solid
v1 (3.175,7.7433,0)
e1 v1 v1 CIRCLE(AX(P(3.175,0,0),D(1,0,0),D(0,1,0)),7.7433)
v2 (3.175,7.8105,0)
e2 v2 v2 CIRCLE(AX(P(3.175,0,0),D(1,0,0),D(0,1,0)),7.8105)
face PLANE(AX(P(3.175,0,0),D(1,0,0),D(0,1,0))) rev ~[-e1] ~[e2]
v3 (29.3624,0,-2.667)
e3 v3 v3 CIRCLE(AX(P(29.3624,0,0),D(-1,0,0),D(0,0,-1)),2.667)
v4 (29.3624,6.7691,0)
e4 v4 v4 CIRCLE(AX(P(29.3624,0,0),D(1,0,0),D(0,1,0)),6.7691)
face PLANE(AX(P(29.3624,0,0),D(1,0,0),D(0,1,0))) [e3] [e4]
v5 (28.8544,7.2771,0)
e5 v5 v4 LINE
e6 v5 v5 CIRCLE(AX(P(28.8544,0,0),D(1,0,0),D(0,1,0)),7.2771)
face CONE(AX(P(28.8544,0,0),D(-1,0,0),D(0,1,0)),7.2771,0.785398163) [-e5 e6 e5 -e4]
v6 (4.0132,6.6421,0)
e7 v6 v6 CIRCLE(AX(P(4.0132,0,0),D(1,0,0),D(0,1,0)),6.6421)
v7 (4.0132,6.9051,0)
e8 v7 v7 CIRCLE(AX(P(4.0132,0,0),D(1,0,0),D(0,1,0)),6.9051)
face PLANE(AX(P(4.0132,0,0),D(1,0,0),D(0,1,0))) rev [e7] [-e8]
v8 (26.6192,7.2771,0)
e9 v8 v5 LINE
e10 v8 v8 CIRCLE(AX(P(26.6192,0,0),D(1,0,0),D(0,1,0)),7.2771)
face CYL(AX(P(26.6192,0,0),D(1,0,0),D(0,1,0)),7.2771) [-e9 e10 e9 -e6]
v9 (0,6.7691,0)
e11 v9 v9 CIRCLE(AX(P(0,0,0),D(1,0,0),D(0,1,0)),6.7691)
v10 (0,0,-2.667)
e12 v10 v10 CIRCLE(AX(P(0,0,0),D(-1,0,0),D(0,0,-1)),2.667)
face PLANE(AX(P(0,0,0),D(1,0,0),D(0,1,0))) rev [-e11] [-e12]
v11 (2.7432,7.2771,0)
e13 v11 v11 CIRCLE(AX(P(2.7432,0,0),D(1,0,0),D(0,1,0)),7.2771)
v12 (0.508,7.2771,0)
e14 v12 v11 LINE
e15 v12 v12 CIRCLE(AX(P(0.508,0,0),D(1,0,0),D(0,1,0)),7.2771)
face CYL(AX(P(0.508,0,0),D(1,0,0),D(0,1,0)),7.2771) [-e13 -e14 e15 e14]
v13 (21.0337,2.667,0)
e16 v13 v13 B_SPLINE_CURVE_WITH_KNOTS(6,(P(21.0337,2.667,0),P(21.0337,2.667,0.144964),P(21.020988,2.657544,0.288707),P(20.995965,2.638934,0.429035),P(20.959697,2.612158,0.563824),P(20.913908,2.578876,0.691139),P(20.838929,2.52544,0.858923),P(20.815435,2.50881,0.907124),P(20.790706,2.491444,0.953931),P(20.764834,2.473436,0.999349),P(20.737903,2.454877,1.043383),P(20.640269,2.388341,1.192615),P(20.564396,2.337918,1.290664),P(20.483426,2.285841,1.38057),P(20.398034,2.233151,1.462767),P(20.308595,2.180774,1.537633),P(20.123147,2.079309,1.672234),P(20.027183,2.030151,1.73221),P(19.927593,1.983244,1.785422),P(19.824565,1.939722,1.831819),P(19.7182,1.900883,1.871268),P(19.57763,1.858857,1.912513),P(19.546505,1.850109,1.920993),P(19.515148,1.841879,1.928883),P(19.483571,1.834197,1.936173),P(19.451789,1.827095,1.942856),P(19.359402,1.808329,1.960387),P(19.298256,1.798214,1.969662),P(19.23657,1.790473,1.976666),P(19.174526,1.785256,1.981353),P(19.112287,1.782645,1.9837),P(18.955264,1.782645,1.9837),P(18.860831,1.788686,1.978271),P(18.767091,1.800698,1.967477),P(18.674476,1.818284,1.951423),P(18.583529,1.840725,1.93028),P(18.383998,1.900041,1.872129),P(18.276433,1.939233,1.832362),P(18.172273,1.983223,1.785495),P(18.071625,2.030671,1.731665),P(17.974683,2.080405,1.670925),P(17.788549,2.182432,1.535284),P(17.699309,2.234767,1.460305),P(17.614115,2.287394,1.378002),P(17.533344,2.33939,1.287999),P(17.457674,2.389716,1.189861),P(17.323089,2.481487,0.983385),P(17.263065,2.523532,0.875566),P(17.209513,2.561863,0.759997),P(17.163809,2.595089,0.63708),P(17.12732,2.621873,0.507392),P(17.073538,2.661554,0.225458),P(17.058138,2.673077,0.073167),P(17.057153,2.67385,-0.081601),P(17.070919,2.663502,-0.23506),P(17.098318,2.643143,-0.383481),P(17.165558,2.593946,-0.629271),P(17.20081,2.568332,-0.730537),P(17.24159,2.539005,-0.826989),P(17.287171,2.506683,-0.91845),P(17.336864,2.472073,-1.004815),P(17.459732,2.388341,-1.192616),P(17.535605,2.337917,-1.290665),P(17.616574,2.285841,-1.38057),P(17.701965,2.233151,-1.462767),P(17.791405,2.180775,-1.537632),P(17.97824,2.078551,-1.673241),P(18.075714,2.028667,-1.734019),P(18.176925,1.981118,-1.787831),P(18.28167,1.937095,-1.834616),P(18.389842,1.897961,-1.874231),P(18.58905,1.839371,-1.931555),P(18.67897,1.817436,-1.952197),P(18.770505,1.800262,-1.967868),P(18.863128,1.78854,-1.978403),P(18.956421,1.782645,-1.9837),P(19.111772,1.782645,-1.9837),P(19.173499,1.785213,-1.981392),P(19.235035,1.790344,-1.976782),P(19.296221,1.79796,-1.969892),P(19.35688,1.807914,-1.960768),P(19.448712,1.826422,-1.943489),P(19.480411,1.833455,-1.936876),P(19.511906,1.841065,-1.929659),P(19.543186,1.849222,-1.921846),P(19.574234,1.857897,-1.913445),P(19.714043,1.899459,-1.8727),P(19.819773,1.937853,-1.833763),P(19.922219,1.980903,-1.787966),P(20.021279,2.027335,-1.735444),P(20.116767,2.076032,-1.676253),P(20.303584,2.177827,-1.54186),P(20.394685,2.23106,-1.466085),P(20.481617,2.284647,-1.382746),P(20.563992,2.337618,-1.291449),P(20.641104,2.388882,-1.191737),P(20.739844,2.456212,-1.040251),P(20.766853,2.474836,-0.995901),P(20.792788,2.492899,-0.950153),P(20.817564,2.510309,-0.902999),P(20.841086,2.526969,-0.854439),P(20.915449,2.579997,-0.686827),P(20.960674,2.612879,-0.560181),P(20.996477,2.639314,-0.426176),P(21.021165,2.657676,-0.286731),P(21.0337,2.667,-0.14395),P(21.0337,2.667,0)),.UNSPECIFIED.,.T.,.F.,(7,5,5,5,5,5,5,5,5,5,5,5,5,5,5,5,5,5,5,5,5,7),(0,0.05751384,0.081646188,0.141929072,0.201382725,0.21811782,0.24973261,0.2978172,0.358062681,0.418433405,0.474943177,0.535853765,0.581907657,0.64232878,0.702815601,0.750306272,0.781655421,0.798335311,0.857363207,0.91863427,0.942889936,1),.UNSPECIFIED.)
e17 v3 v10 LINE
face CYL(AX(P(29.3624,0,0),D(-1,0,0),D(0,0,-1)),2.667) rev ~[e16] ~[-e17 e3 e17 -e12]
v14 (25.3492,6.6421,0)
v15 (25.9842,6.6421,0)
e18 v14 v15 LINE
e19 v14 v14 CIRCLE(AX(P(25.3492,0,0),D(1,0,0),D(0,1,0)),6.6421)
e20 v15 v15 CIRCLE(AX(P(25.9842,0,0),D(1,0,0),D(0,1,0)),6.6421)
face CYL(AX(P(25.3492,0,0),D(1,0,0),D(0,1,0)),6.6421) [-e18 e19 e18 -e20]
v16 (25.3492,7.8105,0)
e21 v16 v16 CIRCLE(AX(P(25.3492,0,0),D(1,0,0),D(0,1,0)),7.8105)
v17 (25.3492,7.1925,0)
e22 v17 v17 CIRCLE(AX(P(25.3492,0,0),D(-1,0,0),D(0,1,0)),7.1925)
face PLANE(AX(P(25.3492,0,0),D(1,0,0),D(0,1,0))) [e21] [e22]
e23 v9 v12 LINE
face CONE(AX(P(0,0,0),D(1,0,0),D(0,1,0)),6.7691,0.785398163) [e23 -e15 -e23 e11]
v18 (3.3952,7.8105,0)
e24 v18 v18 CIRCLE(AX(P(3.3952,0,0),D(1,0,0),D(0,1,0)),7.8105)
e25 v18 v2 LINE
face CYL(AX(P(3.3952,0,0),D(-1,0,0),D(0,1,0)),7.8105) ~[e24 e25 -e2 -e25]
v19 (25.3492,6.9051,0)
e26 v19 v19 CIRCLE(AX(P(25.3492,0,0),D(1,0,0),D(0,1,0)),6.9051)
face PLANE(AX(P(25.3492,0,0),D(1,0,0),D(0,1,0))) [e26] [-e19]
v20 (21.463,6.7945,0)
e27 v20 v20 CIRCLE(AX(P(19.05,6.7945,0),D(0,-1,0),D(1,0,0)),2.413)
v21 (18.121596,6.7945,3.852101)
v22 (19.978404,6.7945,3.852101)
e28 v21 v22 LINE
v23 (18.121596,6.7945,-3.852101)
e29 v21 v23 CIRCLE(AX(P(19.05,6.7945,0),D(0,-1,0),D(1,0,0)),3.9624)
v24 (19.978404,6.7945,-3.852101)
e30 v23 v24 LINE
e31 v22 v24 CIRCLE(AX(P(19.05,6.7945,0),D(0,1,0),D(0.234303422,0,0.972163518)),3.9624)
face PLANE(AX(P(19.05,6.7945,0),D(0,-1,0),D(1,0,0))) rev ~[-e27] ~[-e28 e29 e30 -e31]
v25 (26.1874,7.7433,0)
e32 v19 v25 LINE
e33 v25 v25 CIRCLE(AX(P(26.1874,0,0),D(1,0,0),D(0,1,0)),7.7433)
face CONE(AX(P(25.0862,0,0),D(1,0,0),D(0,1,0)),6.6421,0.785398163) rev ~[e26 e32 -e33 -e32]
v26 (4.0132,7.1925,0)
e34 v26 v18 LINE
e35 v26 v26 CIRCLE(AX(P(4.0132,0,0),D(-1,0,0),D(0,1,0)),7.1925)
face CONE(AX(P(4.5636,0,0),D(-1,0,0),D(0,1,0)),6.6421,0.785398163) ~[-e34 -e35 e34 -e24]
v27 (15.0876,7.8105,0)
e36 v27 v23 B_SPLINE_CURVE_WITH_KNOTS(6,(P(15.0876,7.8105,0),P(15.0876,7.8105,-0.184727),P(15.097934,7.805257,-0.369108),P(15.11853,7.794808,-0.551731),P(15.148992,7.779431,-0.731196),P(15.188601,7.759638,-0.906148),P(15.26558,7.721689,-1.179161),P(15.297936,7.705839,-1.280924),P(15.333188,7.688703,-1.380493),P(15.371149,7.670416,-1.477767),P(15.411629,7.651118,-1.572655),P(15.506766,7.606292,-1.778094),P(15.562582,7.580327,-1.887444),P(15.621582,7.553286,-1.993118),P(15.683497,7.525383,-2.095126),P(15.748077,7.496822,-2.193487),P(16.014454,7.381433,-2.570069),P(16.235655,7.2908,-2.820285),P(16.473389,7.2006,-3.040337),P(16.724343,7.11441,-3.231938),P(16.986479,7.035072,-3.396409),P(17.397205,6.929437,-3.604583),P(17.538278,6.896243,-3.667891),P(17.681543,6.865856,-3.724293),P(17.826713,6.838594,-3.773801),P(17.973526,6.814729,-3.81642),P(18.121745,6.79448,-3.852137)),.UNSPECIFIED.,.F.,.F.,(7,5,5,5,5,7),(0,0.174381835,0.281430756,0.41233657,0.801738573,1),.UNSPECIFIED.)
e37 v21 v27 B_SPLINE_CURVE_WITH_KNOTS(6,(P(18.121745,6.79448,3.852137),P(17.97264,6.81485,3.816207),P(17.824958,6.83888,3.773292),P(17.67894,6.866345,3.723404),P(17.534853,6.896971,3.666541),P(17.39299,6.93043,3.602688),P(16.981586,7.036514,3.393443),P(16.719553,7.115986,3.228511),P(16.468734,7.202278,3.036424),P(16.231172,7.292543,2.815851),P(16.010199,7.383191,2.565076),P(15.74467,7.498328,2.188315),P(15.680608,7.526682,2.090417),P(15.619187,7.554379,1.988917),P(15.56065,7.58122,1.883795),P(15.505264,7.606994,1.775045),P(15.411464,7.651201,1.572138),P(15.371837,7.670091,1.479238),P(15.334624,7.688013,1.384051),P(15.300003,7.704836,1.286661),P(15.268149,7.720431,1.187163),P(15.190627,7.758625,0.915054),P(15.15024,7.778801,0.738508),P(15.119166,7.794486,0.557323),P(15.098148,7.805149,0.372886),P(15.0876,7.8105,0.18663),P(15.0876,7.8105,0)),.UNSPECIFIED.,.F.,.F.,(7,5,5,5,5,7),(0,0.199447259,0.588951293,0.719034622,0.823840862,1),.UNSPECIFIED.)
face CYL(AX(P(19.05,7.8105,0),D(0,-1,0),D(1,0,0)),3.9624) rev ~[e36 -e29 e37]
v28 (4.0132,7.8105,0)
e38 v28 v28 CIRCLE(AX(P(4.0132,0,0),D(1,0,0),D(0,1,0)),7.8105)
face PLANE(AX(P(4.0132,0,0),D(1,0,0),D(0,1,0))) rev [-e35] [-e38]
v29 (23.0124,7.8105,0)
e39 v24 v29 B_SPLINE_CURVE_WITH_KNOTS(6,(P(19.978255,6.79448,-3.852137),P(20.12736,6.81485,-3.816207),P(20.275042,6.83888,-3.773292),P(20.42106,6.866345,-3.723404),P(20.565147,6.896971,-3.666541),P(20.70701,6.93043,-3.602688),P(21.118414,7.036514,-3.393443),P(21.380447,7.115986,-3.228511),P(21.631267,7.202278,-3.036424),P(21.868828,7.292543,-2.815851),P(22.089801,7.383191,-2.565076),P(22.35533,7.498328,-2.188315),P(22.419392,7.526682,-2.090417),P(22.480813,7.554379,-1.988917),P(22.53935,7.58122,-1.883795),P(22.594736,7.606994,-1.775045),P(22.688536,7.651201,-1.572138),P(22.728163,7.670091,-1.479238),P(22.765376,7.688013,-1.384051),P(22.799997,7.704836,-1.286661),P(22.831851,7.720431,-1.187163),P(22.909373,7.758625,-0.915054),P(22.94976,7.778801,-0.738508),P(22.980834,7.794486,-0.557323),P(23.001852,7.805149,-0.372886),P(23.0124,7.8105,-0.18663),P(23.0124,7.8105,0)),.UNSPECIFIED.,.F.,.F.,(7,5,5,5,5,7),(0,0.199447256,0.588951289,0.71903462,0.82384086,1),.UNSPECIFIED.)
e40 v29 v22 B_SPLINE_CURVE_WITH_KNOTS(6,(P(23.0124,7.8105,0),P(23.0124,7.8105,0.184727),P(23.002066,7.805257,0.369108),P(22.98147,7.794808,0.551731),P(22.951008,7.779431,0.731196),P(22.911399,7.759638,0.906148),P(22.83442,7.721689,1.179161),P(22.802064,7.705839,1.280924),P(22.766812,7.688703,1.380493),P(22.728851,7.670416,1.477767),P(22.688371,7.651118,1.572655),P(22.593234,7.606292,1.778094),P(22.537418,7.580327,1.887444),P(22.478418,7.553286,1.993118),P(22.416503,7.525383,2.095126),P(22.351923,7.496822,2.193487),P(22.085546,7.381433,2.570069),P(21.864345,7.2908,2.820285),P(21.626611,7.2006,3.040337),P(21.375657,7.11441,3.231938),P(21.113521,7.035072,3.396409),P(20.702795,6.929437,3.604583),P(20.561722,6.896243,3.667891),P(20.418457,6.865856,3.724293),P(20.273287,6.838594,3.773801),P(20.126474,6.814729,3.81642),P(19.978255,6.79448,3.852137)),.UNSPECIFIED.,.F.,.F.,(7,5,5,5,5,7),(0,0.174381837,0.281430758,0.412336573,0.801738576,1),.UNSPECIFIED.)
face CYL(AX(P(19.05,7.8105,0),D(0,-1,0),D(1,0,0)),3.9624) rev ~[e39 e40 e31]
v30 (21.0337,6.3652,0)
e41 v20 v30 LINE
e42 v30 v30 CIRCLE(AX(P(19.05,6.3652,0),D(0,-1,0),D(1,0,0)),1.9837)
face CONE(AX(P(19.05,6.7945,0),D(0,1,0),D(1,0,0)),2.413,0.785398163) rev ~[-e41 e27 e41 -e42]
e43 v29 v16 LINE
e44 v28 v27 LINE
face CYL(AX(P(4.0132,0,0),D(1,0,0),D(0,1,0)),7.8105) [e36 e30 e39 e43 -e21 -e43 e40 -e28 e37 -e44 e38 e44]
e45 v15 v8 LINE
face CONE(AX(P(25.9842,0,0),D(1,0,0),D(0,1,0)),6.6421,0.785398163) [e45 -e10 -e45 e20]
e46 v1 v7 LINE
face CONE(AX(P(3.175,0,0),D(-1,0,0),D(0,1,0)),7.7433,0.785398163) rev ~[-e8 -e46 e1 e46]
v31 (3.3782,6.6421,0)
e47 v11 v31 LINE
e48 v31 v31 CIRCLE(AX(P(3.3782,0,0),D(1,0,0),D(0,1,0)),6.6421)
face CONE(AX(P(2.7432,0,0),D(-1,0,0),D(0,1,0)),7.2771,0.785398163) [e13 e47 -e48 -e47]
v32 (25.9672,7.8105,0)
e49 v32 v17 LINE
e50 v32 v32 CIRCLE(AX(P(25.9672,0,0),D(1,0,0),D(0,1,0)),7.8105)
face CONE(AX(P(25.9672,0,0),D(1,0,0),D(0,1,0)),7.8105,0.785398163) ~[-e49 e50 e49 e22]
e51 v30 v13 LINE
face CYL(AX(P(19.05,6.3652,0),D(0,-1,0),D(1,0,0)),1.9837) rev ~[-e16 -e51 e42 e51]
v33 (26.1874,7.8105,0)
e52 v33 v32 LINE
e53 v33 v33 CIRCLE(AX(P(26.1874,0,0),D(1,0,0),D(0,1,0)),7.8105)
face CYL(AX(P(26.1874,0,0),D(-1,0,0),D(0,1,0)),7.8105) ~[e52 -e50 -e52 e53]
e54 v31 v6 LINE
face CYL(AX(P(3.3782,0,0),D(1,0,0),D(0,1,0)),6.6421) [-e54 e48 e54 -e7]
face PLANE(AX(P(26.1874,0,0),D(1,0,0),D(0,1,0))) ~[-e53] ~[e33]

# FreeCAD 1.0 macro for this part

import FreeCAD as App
import Part
import Sketcher
Q = App.Units.Quantity

doc = App.newDocument("Part")
body = doc.addObject("PartDesign::Body", "Body")

sketch1 = body.newObject("Sketcher::SketchObject", "Sketch")
sketch1.AttachmentSupport = (doc.getObject("XY_Plane"), [""])
sketch1.MapMode = "FlatFace"
sketch1.addGeometry([
    Part.LineSegment(App.Vector(0, 0, 0), App.Vector(29.3624, 0, 0)),
    Part.LineSegment(App.Vector(29.3624, 0, 0), App.Vector(29.3624, 6.7691, 0)),
    Part.LineSegment(App.Vector(29.3624, 6.7691, 0), App.Vector(28.8544, 7.2771, 0)),
    Part.LineSegment(App.Vector(28.8544, 7.2771, 0), App.Vector(26.6192, 7.2771, 0)),
    Part.LineSegment(App.Vector(26.6192, 7.2771, 0), App.Vector(25.9842, 6.6421, 0)),
    Part.LineSegment(App.Vector(25.9842, 6.6421, 0), App.Vector(25.3492, 6.6421, 0)),
    Part.LineSegment(App.Vector(25.3492, 6.6421, 0), App.Vector(25.3492, 7.8105, 0)),
    Part.LineSegment(App.Vector(25.3492, 7.8105, 0), App.Vector(4.0132, 7.8105, 0)),
    Part.LineSegment(App.Vector(4.0132, 7.8105, 0), App.Vector(4.0132, 6.6421, 0)),
    Part.LineSegment(App.Vector(4.0132, 6.6421, 0), App.Vector(3.3782, 6.6421, 0)),
    Part.LineSegment(App.Vector(3.3782, 6.6421, 0), App.Vector(2.7432, 7.2771, 0)),
    Part.LineSegment(App.Vector(2.7432, 7.2771, 0), App.Vector(0.508, 7.2771, 0)),
    Part.LineSegment(App.Vector(0.508, 7.2771, 0), App.Vector(0, 6.7691, 0)),
    Part.LineSegment(App.Vector(0, 6.7691, 0), App.Vector(0, 0, 0)),
], False)
sketch1.addConstraint([
    Sketcher.Constraint("Coincident", 0, 2, 1, 1),
    Sketcher.Constraint("Coincident", 1, 2, 2, 1),
    Sketcher.Constraint("Coincident", 2, 2, 3, 1),
    Sketcher.Constraint("Coincident", 3, 2, 4, 1),
    Sketcher.Constraint("Coincident", 4, 2, 5, 1),
    Sketcher.Constraint("Coincident", 5, 2, 6, 1),
    Sketcher.Constraint("Coincident", 6, 2, 7, 1),
    Sketcher.Constraint("Coincident", 7, 2, 8, 1),
    Sketcher.Constraint("Coincident", 8, 2, 9, 1),
    Sketcher.Constraint("Coincident", 9, 2, 10, 1),
    Sketcher.Constraint("Coincident", 10, 2, 11, 1),
    Sketcher.Constraint("Coincident", 11, 2, 12, 1),
    Sketcher.Constraint("Coincident", 12, 2, 13, 1),
    Sketcher.Constraint("Coincident", 13, 2, 0, 1),
    Sketcher.Constraint("Horizontal", 0),
    Sketcher.Constraint("Vertical", 1),
    Sketcher.Constraint("Horizontal", 3),
    Sketcher.Constraint("Horizontal", 5),
    Sketcher.Constraint("Vertical", 6),
    Sketcher.Constraint("Horizontal", 7),
    Sketcher.Constraint("Vertical", 8),
    Sketcher.Constraint("Horizontal", 9),
    Sketcher.Constraint("Horizontal", 11),
    Sketcher.Constraint("Vertical", 13),
    Sketcher.Constraint("Coincident", 13, 2, -1, 1),
    Sketcher.Constraint("Perpendicular", 2, 4),
    Sketcher.Constraint("Perpendicular", 4, 10),
    Sketcher.Constraint("Perpendicular", 10, 12),
    Sketcher.Constraint("Horizontal", 5, 2, 8, 2),
    Sketcher.Constraint("Horizontal", 3, 2, 10, 2),
    Sketcher.Constraint("Horizontal", 1, 2, 12, 2),
    Sketcher.Constraint("Equal", 5, 9),
    Sketcher.Constraint("Equal", 3, 11),
    Sketcher.Constraint("Equal", 4, 10),
    Sketcher.Constraint("DistanceX", 7, 2, 7, 1, Q("0.84 in")),
    Sketcher.Constraint("DistanceX", 0, 1, 0, 2, Q("1.156 in")),
    Sketcher.Constraint("DistanceX", 3, 2, 3, 1, Q("0.088 in")),
    Sketcher.Constraint("DistanceX", 5, 2, 5, 1, Q("0.025 in")),
    Sketcher.Constraint("DistanceY", 6, 1, 6, 2, Q("0.046 in")),
    Sketcher.Constraint("DistanceX", -1, 1, 11, 2, Q("0.02 in")),
    Sketcher.Constraint("DistanceY", 1, 1, 1, 2, Q("0.2665 in")),
])
revolution = body.newObject("PartDesign::Revolution", "Revolution")
revolution.Profile = sketch1
revolution.ReferenceAxis = (sketch1, ["H_Axis"])
revolution.Angle = 360

sketch2 = body.newObject("Sketcher::SketchObject", "Sketch001")
sketch2.AttachmentSupport = (doc.getObject("YZ_Plane"), [""])
sketch2.MapMode = "FlatFace"
sketch2.AttachmentOffset = App.Placement(App.Vector(0, 0, 1.156 * 25.4), App.Rotation())
sketch2.addGeometry(Part.Circle(App.Vector(0, 0, 0), App.Vector(0, 0, 1), 2.667), False)
sketch2.addConstraint([
    Sketcher.Constraint("Coincident", 0, 3, -1, 1),
    Sketcher.Constraint("Diameter", 0, Q("0.21 in")),
])
doc.recompute()
hole = body.newObject("PartDesign::Hole", "Hole")
hole.Profile = sketch2
hole.ThreadType = "None"
hole.Diameter = Q("0.21 in")
hole.DepthType = "Dimension"
hole.Depth = Q("1.156 in")
hole.DrillPoint = "Flat"

sketch3 = body.newObject("Sketcher::SketchObject", "Sketch002")
sketch3.AttachmentSupport = (doc.getObject("XY_Plane"), [""])
sketch3.MapMode = "FlatFace"
sketch3.addGeometry([
    Part.LineSegment(App.Vector(19.05, 7.8105, 0), App.Vector(19.05, 0, 0)),
    Part.LineSegment(App.Vector(19.05, 0, 0), App.Vector(21.0337, 0, 0)),
    Part.LineSegment(App.Vector(21.0337, 0, 0), App.Vector(21.0337, 6.3652, 0)),
    Part.LineSegment(App.Vector(21.0337, 6.3652, 0), App.Vector(21.463, 6.7945, 0)),
    Part.LineSegment(App.Vector(21.463, 6.7945, 0), App.Vector(23.0124, 6.7945, 0)),
    Part.LineSegment(App.Vector(23.0124, 6.7945, 0), App.Vector(23.0124, 7.8105, 0)),
    Part.LineSegment(App.Vector(23.0124, 7.8105, 0), App.Vector(19.05, 7.8105, 0)),
], False)
sketch3.addGeometry(Part.LineSegment(App.Vector(19.05, 7.8105, 0), App.Vector(19.05, 0, 0)), True)
sketch3.addConstraint([
    Sketcher.Constraint("Coincident", 0, 2, 1, 1),
    Sketcher.Constraint("Coincident", 1, 2, 2, 1),
    Sketcher.Constraint("Coincident", 2, 2, 3, 1),
    Sketcher.Constraint("Coincident", 3, 2, 4, 1),
    Sketcher.Constraint("Coincident", 4, 2, 5, 1),
    Sketcher.Constraint("Coincident", 5, 2, 6, 1),
    Sketcher.Constraint("Coincident", 6, 2, 0, 1),
    Sketcher.Constraint("Vertical", 0),
    Sketcher.Constraint("Horizontal", 1),
    Sketcher.Constraint("Vertical", 2),
    Sketcher.Constraint("Horizontal", 4),
    Sketcher.Constraint("Vertical", 5),
    Sketcher.Constraint("Horizontal", 6),
    Sketcher.Constraint("Vertical", 7),
    Sketcher.Constraint("Coincident", 7, 1, 6, 2),
    Sketcher.Constraint("PointOnObject", 0, 2, -1),
    Sketcher.Constraint("PointOnObject", 7, 2, -1),
    Sketcher.Constraint("Angle", 3, Q("45 deg")),
    Sketcher.Constraint("DistanceY", 5, 1, 5, 2, Q("0.04 in")),
    Sketcher.Constraint("DistanceX", 4, 1, 4, 2, Q("0.061 in")),
    Sketcher.Constraint("DistanceX", 6, 2, 6, 1, Q("0.156 in")),
    Sketcher.Constraint("DistanceX", -1, 1, 0, 2, Q("0.75 in")),
    Sketcher.Constraint("DistanceX", 1, 1, 1, 2, Q("0.0781 in")),
    Sketcher.Constraint("DistanceY", 0, 2, 0, 1, Q("0.3075 in")),
])
groove = body.newObject("PartDesign::Groove", "Groove")
groove.Profile = sketch3
groove.ReferenceAxis = (sketch3, ["Axis0"])
groove.Angle = 360

sketch4 = body.newObject("Sketcher::SketchObject", "Sketch003")
sketch4.AttachmentSupport = (doc.getObject("XY_Plane"), [""])
sketch4.MapMode = "FlatFace"
sketch4.addGeometry([
    Part.LineSegment(App.Vector(25.9672, 7.8105, 0), App.Vector(24.7988, 6.6421, 0)),
    Part.LineSegment(App.Vector(24.7988, 6.6421, 0), App.Vector(25.0862, 6.6421, 0)),
    Part.LineSegment(App.Vector(25.0862, 6.6421, 0), App.Vector(26.1874, 7.7433, 0)),
    Part.LineSegment(App.Vector(26.1874, 7.7433, 0), App.Vector(26.1874, 7.8105, 0)),
    Part.LineSegment(App.Vector(26.1874, 7.8105, 0), App.Vector(25.9672, 7.8105, 0)),
], False)
sketch4.addConstraint([
    Sketcher.Constraint("Coincident", 0, 2, 1, 1),
    Sketcher.Constraint("Coincident", 1, 2, 2, 1),
    Sketcher.Constraint("Coincident", 2, 2, 3, 1),
    Sketcher.Constraint("Coincident", 3, 2, 4, 1),
    Sketcher.Constraint("Coincident", 4, 2, 0, 1),
    Sketcher.Constraint("Horizontal", 1),
    Sketcher.Constraint("Vertical", 3),
    Sketcher.Constraint("Horizontal", 4),
    Sketcher.Constraint("Parallel", 0, 2),
    Sketcher.Constraint("Angle", 0, Q("-135 deg")),
    Sketcher.Constraint("DistanceX", -1, 1, 2, 2, Q("1.031 in")),
    Sketcher.Constraint("DistanceY", 1, 2, 3, 2, Q("0.046 in")),
    Sketcher.Constraint("DistanceX", 1, 1, 1, 2, 0.2874),
    Sketcher.Constraint("DistanceX", 4, 2, 4, 1, 0.2202),
    Sketcher.Constraint("DistanceY", -1, 1, 0, 2, Q("0.2615 in")),
])
revolution2 = body.newObject("PartDesign::Revolution", "Revolution001")
revolution2.Profile = sketch4
revolution2.ReferenceAxis = (sketch4, ["H_Axis"])
revolution2.Angle = 360

sketch5 = body.newObject("Sketcher::SketchObject", "Sketch004")
sketch5.AttachmentSupport = (doc.getObject("XY_Plane"), [""])
sketch5.MapMode = "FlatFace"
sketch5.addGeometry([
    Part.LineSegment(App.Vector(3.175, 7.8105, 0), App.Vector(3.175, 7.7433, 0)),
    Part.LineSegment(App.Vector(3.175, 7.7433, 0), App.Vector(4.2762, 6.6421, 0)),
    Part.LineSegment(App.Vector(4.2762, 6.6421, 0), App.Vector(4.5636, 6.6421, 0)),
    Part.LineSegment(App.Vector(4.5636, 6.6421, 0), App.Vector(3.3952, 7.8105, 0)),
    Part.LineSegment(App.Vector(3.3952, 7.8105, 0), App.Vector(3.175, 7.8105, 0)),
], False)
sketch5.addConstraint([
    Sketcher.Constraint("Coincident", 0, 2, 1, 1),
    Sketcher.Constraint("Coincident", 1, 2, 2, 1),
    Sketcher.Constraint("Coincident", 2, 2, 3, 1),
    Sketcher.Constraint("Coincident", 3, 2, 4, 1),
    Sketcher.Constraint("Coincident", 4, 2, 0, 1),
    Sketcher.Constraint("Vertical", 0),
    Sketcher.Constraint("Horizontal", 2),
    Sketcher.Constraint("Horizontal", 4),
    Sketcher.Constraint("Parallel", 1, 3),
    Sketcher.Constraint("Angle", 1, Q("-45 deg")),
    Sketcher.Constraint("DistanceX", -1, 1, 0, 2, Q("0.125 in")),
    Sketcher.Constraint("DistanceY", 1, 2, 3, 2, Q("0.046 in")),
    Sketcher.Constraint("DistanceX", 2, 1, 2, 2, 0.2874),
    Sketcher.Constraint("DistanceX", 4, 2, 4, 1, 0.2202),
    Sketcher.Constraint("DistanceY", -1, 1, 1, 2, Q("0.2615 in")),
])
revolution3 = body.newObject("PartDesign::Revolution", "Revolution002")
revolution3.Profile = sketch5
revolution3.ReferenceAxis = (sketch5, ["H_Axis"])
revolution3.Angle = 360

doc.recompute()
